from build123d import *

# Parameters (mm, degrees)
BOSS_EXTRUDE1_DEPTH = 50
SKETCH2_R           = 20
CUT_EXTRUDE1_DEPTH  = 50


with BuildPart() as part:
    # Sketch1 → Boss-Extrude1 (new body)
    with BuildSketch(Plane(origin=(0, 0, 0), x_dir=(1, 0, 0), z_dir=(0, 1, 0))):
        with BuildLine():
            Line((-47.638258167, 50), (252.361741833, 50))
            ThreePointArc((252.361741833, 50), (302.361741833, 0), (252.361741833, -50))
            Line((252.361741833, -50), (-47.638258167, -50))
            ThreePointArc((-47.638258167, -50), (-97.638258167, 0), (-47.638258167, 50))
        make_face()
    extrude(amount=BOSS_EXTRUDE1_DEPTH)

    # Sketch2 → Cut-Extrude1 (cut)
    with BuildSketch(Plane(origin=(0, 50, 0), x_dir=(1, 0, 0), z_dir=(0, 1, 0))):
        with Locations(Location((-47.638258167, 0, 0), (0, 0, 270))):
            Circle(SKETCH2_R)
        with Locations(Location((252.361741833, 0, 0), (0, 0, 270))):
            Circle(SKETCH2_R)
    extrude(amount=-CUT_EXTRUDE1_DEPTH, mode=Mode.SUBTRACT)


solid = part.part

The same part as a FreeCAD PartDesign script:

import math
import FreeCAD as App
import Part
import Sketcher
Q = App.Units.Quantity

doc = App.newDocument("Part")
body = doc.addObject("PartDesign::Body", "Body")

sketch1 = doc.addObject("Sketcher::SketchObject", "Sketch")
body.addObject(sketch1)
sketch1.AttachmentSupport = (doc.XZ_Plane, [""])
sketch1.MapMode = "FlatFace"
sketch1.addGeometry([
    Part.LineSegment(App.Vector(252.361742, -50, 0), App.Vector(-47.638258, -50, 0)),
    Part.ArcOfCircle(Part.Circle(App.Vector(-47.638258, 0, 0), App.Vector(0, 0, 1), 50), math.radians(90), math.radians(270)),
    Part.LineSegment(App.Vector(-47.638258, 50, 0), App.Vector(252.361742, 50, 0)),
    Part.ArcOfCircle(Part.Circle(App.Vector(252.361742, 0, 0), App.Vector(0, 0, 1), 50), math.radians(-90), math.radians(90)),
], False)
sketch1.addConstraint([
    Sketcher.Constraint("Tangent", 0, 2, 1, 2),
    Sketcher.Constraint("Tangent", 1, 1, 2, 1),
    Sketcher.Constraint("Tangent", 2, 2, 3, 2),
    Sketcher.Constraint("Tangent", 3, 1, 0, 1),
    Sketcher.Constraint("Horizontal", 0),
    Sketcher.Constraint("Horizontal", 2),
    Sketcher.Constraint("PointOnObject", 1, 3, -1),
    Sketcher.Constraint("Radius", 1, Q("50 mm")),
    Sketcher.Constraint("DistanceX", 0, 2, 0, 1, Q("300 mm")),
    Sketcher.Constraint("DistanceX", 1, 3, -1, 1, Q("47.638258 mm")),
])
pad1 = doc.addObject("PartDesign::Pad", "Pad")
body.addObject(pad1)
pad1.Profile = sketch1
pad1.Length = 50
pad1.Reversed = True

sketch2 = doc.addObject("Sketcher::SketchObject", "Sketch001")
body.addObject(sketch2)
sketch2.AttachmentSupport = (doc.XZ_Plane, [""])
sketch2.MapMode = "FlatFace"
sketch2.AttachmentOffset = App.Placement(App.Vector(0, 0, -50), App.Rotation())
sketch2.addGeometry([
    Part.Circle(App.Vector(-47.638258, 0, 0), App.Vector(0, 0, 1), 20),
    Part.Circle(App.Vector(252.361742, 0, 0), App.Vector(0, 0, 1), 20),
], False)
sketch2.addConstraint([
    Sketcher.Constraint("Equal", 0, 1),
    Sketcher.Constraint("PointOnObject", 0, 3, -1),
    Sketcher.Constraint("PointOnObject", 1, 3, -1),
    Sketcher.Constraint("Diameter", 0, Q("40 mm")),
    Sketcher.Constraint("DistanceX", 0, 3, 1, 3, Q("300 mm")),
    Sketcher.Constraint("DistanceX", 0, 3, -1, 1, Q("47.638258 mm")),
])
pocket1 = doc.addObject("PartDesign::Pocket", "Pocket")
body.addObject(pocket1)
pocket1.Profile = sketch2
pocket1.Length = 50
pocket1.Reversed = True

doc.recompute()
